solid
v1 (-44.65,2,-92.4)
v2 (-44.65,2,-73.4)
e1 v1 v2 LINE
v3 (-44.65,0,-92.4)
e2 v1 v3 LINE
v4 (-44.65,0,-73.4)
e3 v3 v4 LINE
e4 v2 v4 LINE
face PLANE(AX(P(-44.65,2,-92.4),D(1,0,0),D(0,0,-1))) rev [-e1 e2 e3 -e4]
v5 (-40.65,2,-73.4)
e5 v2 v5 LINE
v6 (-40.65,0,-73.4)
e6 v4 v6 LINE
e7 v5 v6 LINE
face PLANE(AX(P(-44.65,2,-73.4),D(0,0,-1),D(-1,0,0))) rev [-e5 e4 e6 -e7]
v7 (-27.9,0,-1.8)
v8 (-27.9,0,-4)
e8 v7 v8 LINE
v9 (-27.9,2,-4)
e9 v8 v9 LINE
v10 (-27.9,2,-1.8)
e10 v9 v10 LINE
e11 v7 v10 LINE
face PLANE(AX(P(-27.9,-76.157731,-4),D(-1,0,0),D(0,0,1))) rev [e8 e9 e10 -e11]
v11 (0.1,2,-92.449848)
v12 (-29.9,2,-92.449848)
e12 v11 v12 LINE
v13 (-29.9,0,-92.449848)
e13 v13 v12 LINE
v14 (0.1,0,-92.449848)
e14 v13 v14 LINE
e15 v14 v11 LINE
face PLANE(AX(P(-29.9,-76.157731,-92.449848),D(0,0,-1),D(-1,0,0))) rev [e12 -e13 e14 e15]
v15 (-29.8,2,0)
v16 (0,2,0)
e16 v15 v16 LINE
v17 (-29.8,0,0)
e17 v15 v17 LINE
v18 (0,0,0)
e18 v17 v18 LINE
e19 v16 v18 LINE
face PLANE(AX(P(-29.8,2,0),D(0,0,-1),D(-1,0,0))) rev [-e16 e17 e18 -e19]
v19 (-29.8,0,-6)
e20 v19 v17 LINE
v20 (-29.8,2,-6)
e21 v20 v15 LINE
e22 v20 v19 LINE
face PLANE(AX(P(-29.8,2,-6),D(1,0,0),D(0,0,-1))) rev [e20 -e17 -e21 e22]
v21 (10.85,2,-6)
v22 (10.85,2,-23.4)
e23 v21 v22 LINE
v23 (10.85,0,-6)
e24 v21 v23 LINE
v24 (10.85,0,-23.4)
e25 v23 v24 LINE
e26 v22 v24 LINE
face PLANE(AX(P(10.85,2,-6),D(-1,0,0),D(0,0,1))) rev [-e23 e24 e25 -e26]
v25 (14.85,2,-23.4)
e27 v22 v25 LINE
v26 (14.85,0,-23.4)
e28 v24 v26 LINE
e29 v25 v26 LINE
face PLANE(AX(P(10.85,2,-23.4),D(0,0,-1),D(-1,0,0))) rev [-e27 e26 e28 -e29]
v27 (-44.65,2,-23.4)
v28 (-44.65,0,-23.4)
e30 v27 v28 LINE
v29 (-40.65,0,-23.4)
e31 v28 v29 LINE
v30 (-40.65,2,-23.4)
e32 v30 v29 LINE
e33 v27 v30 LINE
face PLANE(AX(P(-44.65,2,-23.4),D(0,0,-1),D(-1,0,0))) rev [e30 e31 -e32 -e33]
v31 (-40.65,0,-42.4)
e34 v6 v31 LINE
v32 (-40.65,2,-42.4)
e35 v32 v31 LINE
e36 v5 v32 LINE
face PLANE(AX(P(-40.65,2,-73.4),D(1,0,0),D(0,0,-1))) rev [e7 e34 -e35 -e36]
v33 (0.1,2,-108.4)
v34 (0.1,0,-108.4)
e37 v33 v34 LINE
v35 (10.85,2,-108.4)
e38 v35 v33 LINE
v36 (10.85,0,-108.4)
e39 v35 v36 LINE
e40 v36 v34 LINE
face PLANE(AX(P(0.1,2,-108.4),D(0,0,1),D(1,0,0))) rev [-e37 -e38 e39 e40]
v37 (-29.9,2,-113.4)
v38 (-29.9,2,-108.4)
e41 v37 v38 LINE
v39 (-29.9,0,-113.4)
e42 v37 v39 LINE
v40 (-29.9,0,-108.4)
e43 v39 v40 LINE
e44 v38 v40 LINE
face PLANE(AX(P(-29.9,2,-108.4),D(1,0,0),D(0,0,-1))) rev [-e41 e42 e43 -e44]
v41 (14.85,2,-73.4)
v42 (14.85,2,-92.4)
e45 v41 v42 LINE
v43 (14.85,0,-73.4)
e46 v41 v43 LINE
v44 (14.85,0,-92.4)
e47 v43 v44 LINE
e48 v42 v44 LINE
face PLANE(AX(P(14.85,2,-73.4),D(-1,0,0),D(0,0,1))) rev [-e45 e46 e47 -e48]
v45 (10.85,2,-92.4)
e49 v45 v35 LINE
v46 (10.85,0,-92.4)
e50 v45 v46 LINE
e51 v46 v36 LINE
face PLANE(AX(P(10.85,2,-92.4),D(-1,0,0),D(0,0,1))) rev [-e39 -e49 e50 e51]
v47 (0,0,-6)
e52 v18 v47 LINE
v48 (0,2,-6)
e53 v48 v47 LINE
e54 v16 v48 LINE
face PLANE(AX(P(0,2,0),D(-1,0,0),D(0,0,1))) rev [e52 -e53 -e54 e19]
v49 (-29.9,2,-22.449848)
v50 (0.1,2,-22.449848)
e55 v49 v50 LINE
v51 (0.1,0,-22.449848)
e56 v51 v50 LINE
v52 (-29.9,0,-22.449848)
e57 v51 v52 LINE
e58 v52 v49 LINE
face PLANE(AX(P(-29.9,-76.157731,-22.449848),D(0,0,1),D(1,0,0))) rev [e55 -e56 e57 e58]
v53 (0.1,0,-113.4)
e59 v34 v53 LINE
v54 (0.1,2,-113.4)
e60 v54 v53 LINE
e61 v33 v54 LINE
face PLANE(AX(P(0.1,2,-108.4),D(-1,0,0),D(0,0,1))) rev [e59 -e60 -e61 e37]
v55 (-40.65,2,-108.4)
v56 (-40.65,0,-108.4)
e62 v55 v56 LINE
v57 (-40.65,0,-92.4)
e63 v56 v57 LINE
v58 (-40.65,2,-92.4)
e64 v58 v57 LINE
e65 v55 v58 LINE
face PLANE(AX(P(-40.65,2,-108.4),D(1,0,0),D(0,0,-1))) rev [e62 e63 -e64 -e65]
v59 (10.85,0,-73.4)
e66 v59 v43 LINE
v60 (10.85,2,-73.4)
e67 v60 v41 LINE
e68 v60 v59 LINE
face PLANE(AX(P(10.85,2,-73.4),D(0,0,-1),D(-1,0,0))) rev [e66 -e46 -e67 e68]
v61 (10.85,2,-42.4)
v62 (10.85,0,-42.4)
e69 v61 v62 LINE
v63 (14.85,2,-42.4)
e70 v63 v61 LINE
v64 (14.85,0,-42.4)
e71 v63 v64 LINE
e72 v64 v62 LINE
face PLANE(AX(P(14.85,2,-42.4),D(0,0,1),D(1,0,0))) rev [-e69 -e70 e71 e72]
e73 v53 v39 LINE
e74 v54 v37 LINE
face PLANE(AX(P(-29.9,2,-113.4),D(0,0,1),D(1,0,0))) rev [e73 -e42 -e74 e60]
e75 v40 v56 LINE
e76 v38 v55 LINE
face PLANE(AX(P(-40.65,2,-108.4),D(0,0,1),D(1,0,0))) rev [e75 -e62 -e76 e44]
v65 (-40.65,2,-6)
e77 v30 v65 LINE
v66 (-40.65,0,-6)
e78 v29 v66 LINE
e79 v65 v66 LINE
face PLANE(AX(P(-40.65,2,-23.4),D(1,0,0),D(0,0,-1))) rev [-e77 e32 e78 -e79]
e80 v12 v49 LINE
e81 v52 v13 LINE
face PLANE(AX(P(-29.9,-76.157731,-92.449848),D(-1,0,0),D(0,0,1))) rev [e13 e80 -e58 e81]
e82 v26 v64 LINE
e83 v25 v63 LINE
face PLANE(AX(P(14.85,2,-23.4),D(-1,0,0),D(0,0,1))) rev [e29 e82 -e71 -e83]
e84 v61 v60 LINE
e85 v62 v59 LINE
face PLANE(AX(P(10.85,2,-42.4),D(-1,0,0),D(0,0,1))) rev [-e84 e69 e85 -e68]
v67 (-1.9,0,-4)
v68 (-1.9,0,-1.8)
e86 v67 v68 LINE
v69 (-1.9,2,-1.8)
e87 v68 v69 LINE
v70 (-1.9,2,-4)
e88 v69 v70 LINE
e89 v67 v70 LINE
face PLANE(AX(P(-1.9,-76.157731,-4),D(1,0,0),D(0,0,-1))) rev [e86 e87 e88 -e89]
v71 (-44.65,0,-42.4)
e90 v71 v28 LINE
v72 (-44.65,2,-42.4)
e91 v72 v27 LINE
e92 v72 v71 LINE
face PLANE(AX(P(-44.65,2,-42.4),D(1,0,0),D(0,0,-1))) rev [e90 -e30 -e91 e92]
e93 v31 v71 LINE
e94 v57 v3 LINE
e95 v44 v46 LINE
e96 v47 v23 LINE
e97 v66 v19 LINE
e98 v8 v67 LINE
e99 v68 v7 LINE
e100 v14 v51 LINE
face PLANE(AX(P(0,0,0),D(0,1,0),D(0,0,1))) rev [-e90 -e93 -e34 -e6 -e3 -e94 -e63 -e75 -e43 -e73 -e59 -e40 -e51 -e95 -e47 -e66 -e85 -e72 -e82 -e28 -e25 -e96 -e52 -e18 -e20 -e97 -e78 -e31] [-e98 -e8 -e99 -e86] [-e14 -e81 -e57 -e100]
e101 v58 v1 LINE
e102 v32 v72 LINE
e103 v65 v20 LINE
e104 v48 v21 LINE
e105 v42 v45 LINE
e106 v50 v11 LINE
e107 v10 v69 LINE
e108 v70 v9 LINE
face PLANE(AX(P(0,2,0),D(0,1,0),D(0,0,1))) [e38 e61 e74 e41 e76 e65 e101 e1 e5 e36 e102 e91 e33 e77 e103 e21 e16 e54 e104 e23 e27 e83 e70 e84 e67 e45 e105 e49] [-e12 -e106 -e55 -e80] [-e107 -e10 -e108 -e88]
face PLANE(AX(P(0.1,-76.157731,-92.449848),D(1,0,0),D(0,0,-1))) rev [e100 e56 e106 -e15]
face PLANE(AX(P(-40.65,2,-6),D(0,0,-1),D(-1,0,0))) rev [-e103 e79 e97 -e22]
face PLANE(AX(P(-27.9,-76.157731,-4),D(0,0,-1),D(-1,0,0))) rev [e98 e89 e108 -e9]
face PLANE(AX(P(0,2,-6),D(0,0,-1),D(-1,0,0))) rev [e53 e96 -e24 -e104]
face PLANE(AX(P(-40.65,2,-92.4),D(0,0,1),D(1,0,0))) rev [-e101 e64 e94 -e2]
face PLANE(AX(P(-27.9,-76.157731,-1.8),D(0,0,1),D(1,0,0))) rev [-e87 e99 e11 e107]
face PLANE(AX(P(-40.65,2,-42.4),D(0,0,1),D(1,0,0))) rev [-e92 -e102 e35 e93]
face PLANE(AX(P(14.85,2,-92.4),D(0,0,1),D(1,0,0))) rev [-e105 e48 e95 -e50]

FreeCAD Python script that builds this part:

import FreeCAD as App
import Part
import Sketcher

V = App.Vector
Q = App.Units.Quantity


def add_polygon(sketch, points):
    """Adds a closed chain of lines whose ends are joined by coincident constraints."""
    first, n = sketch.GeometryCount, len(points)
    for a, b in zip(points, points[1:] + points[:1]):
        sketch.addGeometry(Part.LineSegment(App.Vector(*a, 0), App.Vector(*b, 0)), False)
    for i in range(n):
        sketch.addConstraint(Sketcher.Constraint("Coincident", first + i, 2, first + (i + 1) % n, 1))

doc = App.newDocument("Part")
body = doc.addObject("PartDesign::Body", "Body")

# Sketch on XZ plane
sketch1 = body.newObject("Sketcher::SketchObject", "Sketch")
sketch1.AttachmentSupport = (doc.getObject("XZ_Plane"), [""])
sketch1.MapMode = "FlatFace"
add_polygon(sketch1, [(-29.8, 0), (0, 0), (0, -6), (10.85, -6), (10.85, -23.4), (14.85, -23.4), (14.85, -42.4), (10.85, -42.4), (10.85, -73.4), (14.85, -73.4), (14.85, -92.4), (10.85, -92.4), (10.85, -108.4), (0.1, -108.4), (0.1, -113.4), (-29.9, -113.4), (-29.9, -108.4), (-40.65, -108.4), (-40.65, -92.4), (-44.65, -92.4), (-44.65, -73.4), (-40.65, -73.4), (-40.65, -42.4), (-44.65, -42.4), (-44.65, -23.4), (-40.65, -23.4), (-40.65, -6), (-29.8, -6)])  # lines 0-27
sketch1.addConstraint([
    Sketcher.Constraint("Horizontal", 0),
    Sketcher.Constraint("Vertical", 1),
    Sketcher.Constraint("Horizontal", 2),
    Sketcher.Constraint("Vertical", 3),
    Sketcher.Constraint("Horizontal", 4),
    Sketcher.Constraint("Vertical", 5),
    Sketcher.Constraint("Horizontal", 6),
    Sketcher.Constraint("Vertical", 7),
    Sketcher.Constraint("Horizontal", 8),
    Sketcher.Constraint("Vertical", 9),
    Sketcher.Constraint("Horizontal", 10),
    Sketcher.Constraint("Vertical", 11),
    Sketcher.Constraint("Horizontal", 12),
    Sketcher.Constraint("Vertical", 13),
    Sketcher.Constraint("Horizontal", 14),
    Sketcher.Constraint("Vertical", 15),
    Sketcher.Constraint("Horizontal", 16),
    Sketcher.Constraint("Vertical", 17),
    Sketcher.Constraint("Horizontal", 18),
    Sketcher.Constraint("Vertical", 19),
    Sketcher.Constraint("Horizontal", 20),
    Sketcher.Constraint("Vertical", 21),
    Sketcher.Constraint("Horizontal", 22),
    Sketcher.Constraint("Vertical", 23),
    Sketcher.Constraint("Horizontal", 24),
    Sketcher.Constraint("Vertical", 25),
    Sketcher.Constraint("Horizontal", 26),
    Sketcher.Constraint("Vertical", 27),
    Sketcher.Constraint("Coincident", 0, 2, -1, 1),
    Sketcher.Constraint("Horizontal", 12, 2, 15, 2),
    Sketcher.Constraint("Horizontal", 10, 2, 17, 2),
    Sketcher.Constraint("Horizontal", 8, 2, 19, 2),
    Sketcher.Constraint("Horizontal", 6, 2, 21, 2),
    Sketcher.Constraint("Horizontal", 4, 2, 23, 2),
    Sketcher.Constraint("Horizontal", 2, 2, 25, 2),
    Sketcher.Constraint("Vertical", 3, 2, 6, 2),
    Sketcher.Constraint("Vertical", 5, 2, 8, 2),
    Sketcher.Constraint("Vertical", 7, 2, 10, 2),
    Sketcher.Constraint("Vertical", 17, 2, 20, 2),
    Sketcher.Constraint("Vertical", 19, 2, 22, 2),
    Sketcher.Constraint("Vertical", 21, 2, 24, 2),
    Sketcher.Constraint("Equal", 12, 16),
    Sketcher.Constraint("Equal", 10, 18),
    Sketcher.Constraint("Equal", 2, 26),
    Sketcher.Constraint("Equal", 5, 9),
    Sketcher.Constraint("DistanceX", 4, 1, 4, 2, Q("4 mm")),
    Sketcher.Constraint("DistanceX", 14, 2, 14, 1, Q("30 mm")),
    Sketcher.Constraint("DistanceY", 1, 2, 1, 1, Q("6 mm")),
    Sketcher.Constraint("DistanceY", 5, 2, 5, 1, Q("19 mm")),
    Sketcher.Constraint("DistanceY", 7, 2, 7, 1, Q("31 mm")),
    Sketcher.Constraint("DistanceY", 11, 2, 11, 1, Q("16 mm")),
    Sketcher.Constraint("DistanceY", 13, 2, 13, 1, Q("5 mm")),
    Sketcher.Constraint("DistanceX", 0, 1, 0, 2, Q("29.8 mm")),
    Sketcher.Constraint("DistanceY", 3, 2, 3, 1, Q("17.4 mm")),
    Sketcher.Constraint("DistanceX", 2, 1, 2, 2, Q("10.85 mm")),
])
pad1 = body.newObject("PartDesign::Pad", "Pad")
pad1.Profile = sketch1
pad1.Length = 2
pad1.Reversed = True

# Sketch on XZ plane
sketch2 = body.newObject("Sketcher::SketchObject", "Sketch001")
sketch2.AttachmentSupport = (doc.getObject("XZ_Plane"), [""])
sketch2.MapMode = "FlatFace"
sketch2.AttachmentOffset = App.Placement(V(0, 0, -2), App.Rotation())
add_polygon(sketch2, [(-29.9, -92.449848), (-29.9, -22.449848), (0.1, -22.449848), (0.1, -92.449848)])  # lines 0-3
add_polygon(sketch2, [(-27.9, -4), (-27.9, -1.8), (-1.9, -1.8), (-1.9, -4)])  # lines 4-7
sketch2.addConstraint([
    Sketcher.Constraint("Vertical", 0),
    Sketcher.Constraint("Horizontal", 1),
    Sketcher.Constraint("Vertical", 2),
    Sketcher.Constraint("Horizontal", 3),
    Sketcher.Constraint("Vertical", 4),
    Sketcher.Constraint("Horizontal", 5),
    Sketcher.Constraint("Vertical", 6),
    Sketcher.Constraint("Horizontal", 7),
    Sketcher.Constraint("DistanceX", 1, 1, 1, 2, Q("30 mm")),
    Sketcher.Constraint("DistanceX", 5, 1, 5, 2, Q("26 mm")),
    Sketcher.Constraint("DistanceY", 0, 1, 0, 2, Q("70 mm")),
    Sketcher.Constraint("DistanceY", 4, 1, 4, 2, Q("2.2 mm")),
    Sketcher.Constraint("DistanceY", 6, 2, -1, 1, Q("4 mm")),
    Sketcher.Constraint("DistanceX", 0, 2, 4, 2, Q("2 mm")),
    Sketcher.Constraint("DistanceX", 0, 2, -1, 1, Q("29.9 mm")),
    Sketcher.Constraint("DistanceY", 0, 2, -1, 1, Q("22.449848 mm")),
])
pocket1 = body.newObject("PartDesign::Pocket", "Pocket")
pocket1.Profile = sketch2
pocket1.Length = 2
pocket1.Reversed = True

doc.recompute()
